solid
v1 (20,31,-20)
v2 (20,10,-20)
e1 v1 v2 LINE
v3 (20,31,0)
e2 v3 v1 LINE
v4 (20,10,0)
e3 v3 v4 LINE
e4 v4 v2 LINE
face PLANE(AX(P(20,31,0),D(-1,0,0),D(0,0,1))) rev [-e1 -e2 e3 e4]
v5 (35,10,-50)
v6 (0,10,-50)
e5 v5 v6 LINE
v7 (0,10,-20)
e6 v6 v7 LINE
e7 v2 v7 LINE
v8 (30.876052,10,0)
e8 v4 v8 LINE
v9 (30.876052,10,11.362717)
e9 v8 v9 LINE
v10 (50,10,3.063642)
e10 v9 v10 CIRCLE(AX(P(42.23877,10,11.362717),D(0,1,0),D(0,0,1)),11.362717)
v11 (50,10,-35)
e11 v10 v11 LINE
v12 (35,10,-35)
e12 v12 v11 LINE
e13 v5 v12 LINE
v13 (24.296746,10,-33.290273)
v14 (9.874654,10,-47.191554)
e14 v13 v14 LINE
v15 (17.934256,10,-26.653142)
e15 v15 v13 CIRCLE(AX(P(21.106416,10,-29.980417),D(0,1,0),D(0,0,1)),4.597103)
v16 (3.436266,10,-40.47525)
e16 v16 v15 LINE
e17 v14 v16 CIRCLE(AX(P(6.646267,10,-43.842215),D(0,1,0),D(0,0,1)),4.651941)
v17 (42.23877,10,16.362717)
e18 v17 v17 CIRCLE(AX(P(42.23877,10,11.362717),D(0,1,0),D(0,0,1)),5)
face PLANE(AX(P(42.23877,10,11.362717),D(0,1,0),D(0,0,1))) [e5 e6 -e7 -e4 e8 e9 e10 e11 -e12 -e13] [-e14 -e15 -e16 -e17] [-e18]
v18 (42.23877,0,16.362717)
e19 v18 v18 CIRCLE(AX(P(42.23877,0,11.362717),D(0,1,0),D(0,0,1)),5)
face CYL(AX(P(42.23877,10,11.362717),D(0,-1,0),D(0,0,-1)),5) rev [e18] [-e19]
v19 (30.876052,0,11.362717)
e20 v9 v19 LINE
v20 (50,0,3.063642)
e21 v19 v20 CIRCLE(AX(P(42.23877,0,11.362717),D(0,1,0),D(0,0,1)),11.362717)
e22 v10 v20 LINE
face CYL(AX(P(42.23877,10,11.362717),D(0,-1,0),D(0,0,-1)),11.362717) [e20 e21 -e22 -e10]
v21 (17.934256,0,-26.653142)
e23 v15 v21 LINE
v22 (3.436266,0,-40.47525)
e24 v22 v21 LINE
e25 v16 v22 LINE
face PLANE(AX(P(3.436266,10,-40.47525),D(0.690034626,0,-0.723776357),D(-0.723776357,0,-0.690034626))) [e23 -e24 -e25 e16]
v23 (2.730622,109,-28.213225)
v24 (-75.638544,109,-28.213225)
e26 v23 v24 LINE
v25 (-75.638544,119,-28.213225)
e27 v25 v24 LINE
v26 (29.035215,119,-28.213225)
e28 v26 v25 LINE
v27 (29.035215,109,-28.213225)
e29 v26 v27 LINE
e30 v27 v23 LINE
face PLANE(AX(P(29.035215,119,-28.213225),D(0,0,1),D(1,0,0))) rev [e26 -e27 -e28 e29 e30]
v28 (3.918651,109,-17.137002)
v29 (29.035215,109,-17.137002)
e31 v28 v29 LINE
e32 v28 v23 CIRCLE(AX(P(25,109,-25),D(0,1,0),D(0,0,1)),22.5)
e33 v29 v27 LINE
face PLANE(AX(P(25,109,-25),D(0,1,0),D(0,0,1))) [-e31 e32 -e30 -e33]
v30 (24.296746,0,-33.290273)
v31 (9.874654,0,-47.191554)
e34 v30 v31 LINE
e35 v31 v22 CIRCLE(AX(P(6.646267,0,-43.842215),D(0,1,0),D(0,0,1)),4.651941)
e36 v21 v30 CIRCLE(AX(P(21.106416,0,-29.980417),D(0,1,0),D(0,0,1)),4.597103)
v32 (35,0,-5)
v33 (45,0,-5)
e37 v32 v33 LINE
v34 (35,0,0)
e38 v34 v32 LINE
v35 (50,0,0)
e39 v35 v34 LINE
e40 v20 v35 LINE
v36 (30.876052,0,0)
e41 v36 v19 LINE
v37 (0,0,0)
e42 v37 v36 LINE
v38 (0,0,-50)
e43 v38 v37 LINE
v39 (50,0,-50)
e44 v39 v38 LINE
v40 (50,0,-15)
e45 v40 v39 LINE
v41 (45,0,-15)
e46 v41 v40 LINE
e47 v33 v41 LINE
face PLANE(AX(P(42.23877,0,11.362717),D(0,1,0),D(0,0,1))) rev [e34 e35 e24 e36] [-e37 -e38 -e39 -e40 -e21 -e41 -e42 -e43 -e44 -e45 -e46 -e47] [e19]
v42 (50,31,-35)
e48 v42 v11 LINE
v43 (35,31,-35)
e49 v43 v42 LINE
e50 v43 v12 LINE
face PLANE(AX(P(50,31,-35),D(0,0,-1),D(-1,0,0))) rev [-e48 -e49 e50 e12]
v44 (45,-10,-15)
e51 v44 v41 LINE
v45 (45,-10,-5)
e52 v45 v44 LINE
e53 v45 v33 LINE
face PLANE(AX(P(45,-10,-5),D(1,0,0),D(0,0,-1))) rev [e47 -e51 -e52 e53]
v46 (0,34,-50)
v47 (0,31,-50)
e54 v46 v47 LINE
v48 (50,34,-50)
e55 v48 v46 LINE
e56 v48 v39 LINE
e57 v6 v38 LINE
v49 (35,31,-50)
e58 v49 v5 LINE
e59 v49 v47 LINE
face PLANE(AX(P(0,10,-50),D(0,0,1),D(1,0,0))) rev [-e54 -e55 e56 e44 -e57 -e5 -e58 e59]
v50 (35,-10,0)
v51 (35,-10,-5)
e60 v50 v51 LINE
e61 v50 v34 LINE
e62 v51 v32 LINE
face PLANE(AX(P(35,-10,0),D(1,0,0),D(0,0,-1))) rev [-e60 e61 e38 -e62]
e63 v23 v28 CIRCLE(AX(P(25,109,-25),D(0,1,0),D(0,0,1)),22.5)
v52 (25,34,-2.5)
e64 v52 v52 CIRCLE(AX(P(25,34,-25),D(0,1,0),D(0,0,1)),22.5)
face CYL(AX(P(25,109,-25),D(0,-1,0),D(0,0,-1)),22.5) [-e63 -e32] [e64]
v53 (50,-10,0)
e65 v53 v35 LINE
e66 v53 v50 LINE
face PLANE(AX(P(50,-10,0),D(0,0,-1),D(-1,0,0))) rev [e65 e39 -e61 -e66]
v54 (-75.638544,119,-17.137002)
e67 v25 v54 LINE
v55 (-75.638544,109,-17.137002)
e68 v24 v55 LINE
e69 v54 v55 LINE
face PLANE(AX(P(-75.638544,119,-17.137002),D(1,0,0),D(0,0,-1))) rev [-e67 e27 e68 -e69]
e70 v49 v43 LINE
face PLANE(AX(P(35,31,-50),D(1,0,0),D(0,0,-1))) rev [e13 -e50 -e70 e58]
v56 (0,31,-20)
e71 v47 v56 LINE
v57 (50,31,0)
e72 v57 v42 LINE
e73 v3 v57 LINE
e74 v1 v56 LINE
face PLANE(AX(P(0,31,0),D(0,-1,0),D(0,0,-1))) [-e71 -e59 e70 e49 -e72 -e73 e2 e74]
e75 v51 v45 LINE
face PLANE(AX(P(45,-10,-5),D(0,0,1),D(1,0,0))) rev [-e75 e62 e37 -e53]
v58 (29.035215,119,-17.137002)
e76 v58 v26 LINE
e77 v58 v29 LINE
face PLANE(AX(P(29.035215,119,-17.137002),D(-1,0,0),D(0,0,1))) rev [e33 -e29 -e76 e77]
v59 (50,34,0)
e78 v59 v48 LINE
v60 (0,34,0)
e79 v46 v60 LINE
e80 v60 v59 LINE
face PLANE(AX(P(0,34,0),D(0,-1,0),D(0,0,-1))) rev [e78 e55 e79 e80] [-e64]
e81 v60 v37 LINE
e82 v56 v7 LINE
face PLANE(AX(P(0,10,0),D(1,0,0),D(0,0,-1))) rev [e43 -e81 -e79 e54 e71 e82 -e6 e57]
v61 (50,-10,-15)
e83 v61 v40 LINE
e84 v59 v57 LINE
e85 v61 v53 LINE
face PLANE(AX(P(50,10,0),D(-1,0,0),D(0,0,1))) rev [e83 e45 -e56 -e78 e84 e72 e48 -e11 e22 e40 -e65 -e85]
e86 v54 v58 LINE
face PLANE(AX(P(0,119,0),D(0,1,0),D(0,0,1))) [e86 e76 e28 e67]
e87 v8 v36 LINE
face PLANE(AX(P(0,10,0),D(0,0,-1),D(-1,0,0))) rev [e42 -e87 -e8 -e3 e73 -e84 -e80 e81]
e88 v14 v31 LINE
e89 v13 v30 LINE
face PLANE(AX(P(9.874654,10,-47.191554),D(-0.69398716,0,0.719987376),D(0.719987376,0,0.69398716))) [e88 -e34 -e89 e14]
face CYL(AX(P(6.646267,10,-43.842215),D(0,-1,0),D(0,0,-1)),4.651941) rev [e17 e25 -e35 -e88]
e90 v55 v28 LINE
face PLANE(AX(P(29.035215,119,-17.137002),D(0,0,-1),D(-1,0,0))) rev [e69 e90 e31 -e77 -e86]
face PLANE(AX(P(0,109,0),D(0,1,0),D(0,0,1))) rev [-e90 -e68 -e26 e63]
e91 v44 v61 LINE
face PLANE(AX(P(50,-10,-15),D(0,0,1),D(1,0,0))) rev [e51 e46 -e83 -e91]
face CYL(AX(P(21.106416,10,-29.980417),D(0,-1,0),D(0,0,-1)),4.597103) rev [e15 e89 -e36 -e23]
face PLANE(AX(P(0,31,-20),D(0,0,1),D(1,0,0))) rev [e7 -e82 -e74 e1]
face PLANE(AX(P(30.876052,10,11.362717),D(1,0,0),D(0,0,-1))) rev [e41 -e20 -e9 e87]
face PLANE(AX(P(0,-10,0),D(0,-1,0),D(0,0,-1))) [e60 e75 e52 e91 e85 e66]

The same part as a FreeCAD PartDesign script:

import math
import FreeCAD as App
import Part
import Sketcher

V = App.Vector

doc = App.newDocument("Part")
body = doc.addObject("PartDesign::Body", "Body")

sketch1 = body.newObject("Sketcher::SketchObject", "Sketch")
sketch1.AttachmentSupport = (doc.getObject("XZ_Plane"), [""])
sketch1.MapMode = "FlatFace"
sketch1.addGeometry([
    Part.LineSegment(V(0, 0, 0), V(30.9, 0, 0)),
    Part.LineSegment(V(30.9, 0, 0), V(30.9, 11.4, 0)),
    Part.ArcOfCircle(Part.Circle(V(42.2, 11.4, 0), V(0, 0, 1), 11.4), math.radians(-47), math.radians(180)),
    Part.LineSegment(V(50, 3.1, 0), V(50, -50, 0)),
    Part.LineSegment(V(50, -50, 0), V(0, -50, 0)),
    Part.LineSegment(V(0, -50, 0), V(0, 0, 0)),
    Part.Circle(V(42.2, 11.4, 0), V(0, 0, 1), 5),
    Part.ArcOfCircle(Part.Circle(V(6.6, -43.8, 0), V(0, 0, 1), 4.7), math.radians(134), math.radians(314)),
    Part.LineSegment(V(9.9, -47.2, 0), V(24.3, -33.3, 0)),
    Part.ArcOfCircle(Part.Circle(V(21.1, -30, 0), V(0, 0, 1), 4.6), math.radians(-46), math.radians(134)),
    Part.LineSegment(V(17.9, -26.7, 0), V(3.4, -40.5, 0)),
], False)
sketch1.addConstraint([
    Sketcher.Constraint("Coincident", 0, 2, 1, 1),
    Sketcher.Constraint("Tangent", 1, 2, 2, 2),
    Sketcher.Constraint("Coincident", 2, 1, 3, 1),
    Sketcher.Constraint("Coincident", 3, 2, 4, 1),
    Sketcher.Constraint("Coincident", 4, 2, 5, 1),
    Sketcher.Constraint("Coincident", 5, 2, 0, 1),
    Sketcher.Constraint("Tangent", 7, 2, 8, 1),
    Sketcher.Constraint("Tangent", 8, 2, 9, 1),
    Sketcher.Constraint("Tangent", 9, 2, 10, 1),
    Sketcher.Constraint("Tangent", 10, 2, 7, 1),
    Sketcher.Constraint("Horizontal", 0),
    Sketcher.Constraint("Vertical", 1),
    Sketcher.Constraint("Vertical", 3),
    Sketcher.Constraint("Horizontal", 4),
    Sketcher.Constraint("Vertical", 5),
    Sketcher.Constraint("Coincident", 5, 2, -1, 1),
    Sketcher.Constraint("Coincident", 6, 3, 2, 3),
    Sketcher.Constraint("Equal", 4, 5),
    Sketcher.Constraint("Diameter", 6, 10.0),
    Sketcher.Constraint("DistanceX", 4, 2, 4, 1, 50.0),
    Sketcher.Constraint("Radius", 7, 4.651941),
    Sketcher.Constraint("DistanceX", 10, 2, 7, 3, 3.210001),
    Sketcher.Constraint("Radius", 2, 11.362717),
    Sketcher.Constraint("Radius", 9, 4.597103),
    Sketcher.Constraint("DistanceY", 7, 3, 9, 3, 13.861798),
    Sketcher.Constraint("DistanceX", 0, 1, 0, 2, 30.876052),
    Sketcher.Constraint("DistanceY", 1, 1, 1, 2, 11.362717),
    Sketcher.Constraint("DistanceY", 10, 2, -1, 1, 40.47525),
    Sketcher.Constraint("DistanceX", -1, 1, 7, 3, 6.646267),
])
pad1 = body.newObject("PartDesign::Pad", "Pad")
pad1.Profile = sketch1
pad1.Length = 10
pad1.Reversed = True

sketch2 = body.newObject("Sketcher::SketchObject", "Sketch001")
sketch2.AttachmentSupport = (doc.getObject("XZ_Plane"), [""])
sketch2.MapMode = "FlatFace"
sketch2.addGeometry([
    Part.LineSegment(V(35, -5, 0), V(45, -5, 0)),
    Part.LineSegment(V(45, -5, 0), V(45, -15, 0)),
    Part.LineSegment(V(45, -15, 0), V(50, -15, 0)),
    Part.LineSegment(V(50, -15, 0), V(50, 0, 0)),
    Part.LineSegment(V(50, 0, 0), V(35, 0, 0)),
    Part.LineSegment(V(35, 0, 0), V(35, -5, 0)),
], False)
sketch2.addConstraint([
    Sketcher.Constraint("Coincident", 0, 2, 1, 1),
    Sketcher.Constraint("Coincident", 1, 2, 2, 1),
    Sketcher.Constraint("Coincident", 2, 2, 3, 1),
    Sketcher.Constraint("Coincident", 3, 2, 4, 1),
    Sketcher.Constraint("Coincident", 4, 2, 5, 1),
    Sketcher.Constraint("Coincident", 5, 2, 0, 1),
    Sketcher.Constraint("Horizontal", 0),
    Sketcher.Constraint("Vertical", 1),
    Sketcher.Constraint("Horizontal", 2),
    Sketcher.Constraint("Vertical", 3),
    Sketcher.Constraint("Horizontal", 4),
    Sketcher.Constraint("Vertical", 5),
    Sketcher.Constraint("PointOnObject", 3, 2, -1),
    Sketcher.Constraint("Equal", 0, 1),
    Sketcher.Constraint("Equal", 4, 3),
    Sketcher.Constraint("DistanceX", 0, 1, 0, 2, 10.0),
    Sketcher.Constraint("DistanceX", 2, 1, 2, 2, 5.0),
    Sketcher.Constraint("DistanceX", -1, 1, 0, 2, 45.0),
])
pad2 = body.newObject("PartDesign::Pad", "Pad001")
pad2.Profile = sketch2
pad2.Length = 10

sketch3 = body.newObject("Sketcher::SketchObject", "Sketch002")
sketch3.AttachmentSupport = (doc.getObject("XZ_Plane"), [""])
sketch3.MapMode = "FlatFace"
sketch3.AttachmentOffset = App.Placement(V(0, 0, -10), App.Rotation())
sketch3.addGeometry([
    Part.LineSegment(V(0, -20, 0), V(0, 0, 0)),
    Part.LineSegment(V(0, 0, 0), V(20, 0, 0)),
    Part.LineSegment(V(20, 0, 0), V(20, -20, 0)),
    Part.LineSegment(V(20, -20, 0), V(0, -20, 0)),
    Part.LineSegment(V(35, -50, 0), V(35, -35, 0)),
    Part.LineSegment(V(35, -35, 0), V(50, -35, 0)),
    Part.LineSegment(V(50, -35, 0), V(50, -50, 0)),
    Part.LineSegment(V(50, -50, 0), V(35, -50, 0)),
], False)
sketch3.addConstraint([
    Sketcher.Constraint("Coincident", 0, 2, 1, 1),
    Sketcher.Constraint("Coincident", 1, 2, 2, 1),
    Sketcher.Constraint("Coincident", 2, 2, 3, 1),
    Sketcher.Constraint("Coincident", 3, 2, 0, 1),
    Sketcher.Constraint("Coincident", 4, 2, 5, 1),
    Sketcher.Constraint("Coincident", 5, 2, 6, 1),
    Sketcher.Constraint("Coincident", 6, 2, 7, 1),
    Sketcher.Constraint("Coincident", 7, 2, 4, 1),
    Sketcher.Constraint("Vertical", 0),
    Sketcher.Constraint("Horizontal", 1),
    Sketcher.Constraint("Vertical", 2),
    Sketcher.Constraint("Horizontal", 3),
    Sketcher.Constraint("Vertical", 4),
    Sketcher.Constraint("Horizontal", 5),
    Sketcher.Constraint("Vertical", 6),
    Sketcher.Constraint("Horizontal", 7),
    Sketcher.Constraint("Coincident", 0, 2, -1, 1),
    Sketcher.Constraint("Equal", 3, 0),
    Sketcher.Constraint("Equal", 7, 4),
    Sketcher.Constraint("DistanceX", 1, 1, 1, 2, 20.0),
    Sketcher.Constraint("DistanceX", 5, 1, 5, 2, 15.0),
    Sketcher.Constraint("DistanceX", -1, 1, 4, 2, 35.0),
    Sketcher.Constraint("DistanceY", 4, 2, -1, 1, 35.0),
])
pad3 = body.newObject("PartDesign::Pad", "Pad002")
pad3.Profile = sketch3
pad3.Length = 21
pad3.Reversed = True

sketch4 = body.newObject("Sketcher::SketchObject", "Sketch003")
sketch4.AttachmentSupport = (doc.getObject("XZ_Plane"), [""])
sketch4.MapMode = "FlatFace"
sketch4.AttachmentOffset = App.Placement(V(0, 0, -31), App.Rotation())
sketch4.addGeometry([
    Part.LineSegment(V(0, -50, 0), V(0, 0, 0)),
    Part.LineSegment(V(0, 0, 0), V(50, 0, 0)),
    Part.LineSegment(V(50, 0, 0), V(50, -50, 0)),
    Part.LineSegment(V(50, -50, 0), V(0, -50, 0)),
], False)
sketch4.addConstraint([
    Sketcher.Constraint("Coincident", 0, 2, 1, 1),
    Sketcher.Constraint("Coincident", 1, 2, 2, 1),
    Sketcher.Constraint("Coincident", 2, 2, 3, 1),
    Sketcher.Constraint("Coincident", 3, 2, 0, 1),
    Sketcher.Constraint("Vertical", 0),
    Sketcher.Constraint("Horizontal", 1),
    Sketcher.Constraint("Vertical", 2),
    Sketcher.Constraint("Horizontal", 3),
    Sketcher.Constraint("Coincident", 0, 2, -1, 1),
    Sketcher.Constraint("Equal", 3, 0),
    Sketcher.Constraint("DistanceX", 1, 1, 1, 2, 50.0),
])
pad4 = body.newObject("PartDesign::Pad", "Pad003")
pad4.Profile = sketch4
pad4.Length = 3
pad4.Reversed = True

sketch5 = body.newObject("Sketcher::SketchObject", "Sketch004")
sketch5.AttachmentSupport = (doc.getObject("XZ_Plane"), [""])
sketch5.MapMode = "FlatFace"
sketch5.AttachmentOffset = App.Placement(V(0, 0, -34), App.Rotation())
sketch5.addGeometry(Part.Circle(V(25, -25, 0), V(0, 0, 1), 22), False)
sketch5.addConstraint([
    Sketcher.Constraint("Diameter", 0, 45.0),
    Sketcher.Constraint("DistanceX", -1, 1, 0, 3, 25.0),
    Sketcher.Constraint("DistanceY", 0, 3, -1, 1, 25.0),
])
pad5 = body.newObject("PartDesign::Pad", "Pad004")
pad5.Profile = sketch5
pad5.Length = 75
pad5.Reversed = True

sketch6 = body.newObject("Sketcher::SketchObject", "Sketch005")
sketch6.AttachmentSupport = (doc.getObject("XZ_Plane"), [""])
sketch6.MapMode = "FlatFace"
sketch6.AttachmentOffset = App.Placement(V(0, 0, -109), App.Rotation())
sketch6.addGeometry([
    Part.LineSegment(V(-76, -28, 0), V(-76, -17, 0)),
    Part.LineSegment(V(-76, -17, 0), V(29, -17, 0)),
    Part.LineSegment(V(29, -17, 0), V(29, -28, 0)),
    Part.LineSegment(V(29, -28, 0), V(-76, -28, 0)),
], False)
sketch6.addConstraint([
    Sketcher.Constraint("Coincident", 0, 2, 1, 1),
    Sketcher.Constraint("Coincident", 1, 2, 2, 1),
    Sketcher.Constraint("Coincident", 2, 2, 3, 1),
    Sketcher.Constraint("Coincident", 3, 2, 0, 1),
    Sketcher.Constraint("Vertical", 0),
    Sketcher.Constraint("Horizontal", 1),
    Sketcher.Constraint("Vertical", 2),
    Sketcher.Constraint("Horizontal", 3),
    Sketcher.Constraint("DistanceX", 1, 1, 1, 2, 104.673759),
    Sketcher.Constraint("DistanceY", 0, 1, 0, 2, 11.076223),
    Sketcher.Constraint("DistanceX", 0, 2, -1, 1, 75.638544),
    Sketcher.Constraint("DistanceY", 0, 2, -1, 1, 17.137002),
])
pad6 = body.newObject("PartDesign::Pad", "Pad005")
pad6.Profile = sketch6
pad6.Length = 10
pad6.Reversed = True

doc.recompute()
